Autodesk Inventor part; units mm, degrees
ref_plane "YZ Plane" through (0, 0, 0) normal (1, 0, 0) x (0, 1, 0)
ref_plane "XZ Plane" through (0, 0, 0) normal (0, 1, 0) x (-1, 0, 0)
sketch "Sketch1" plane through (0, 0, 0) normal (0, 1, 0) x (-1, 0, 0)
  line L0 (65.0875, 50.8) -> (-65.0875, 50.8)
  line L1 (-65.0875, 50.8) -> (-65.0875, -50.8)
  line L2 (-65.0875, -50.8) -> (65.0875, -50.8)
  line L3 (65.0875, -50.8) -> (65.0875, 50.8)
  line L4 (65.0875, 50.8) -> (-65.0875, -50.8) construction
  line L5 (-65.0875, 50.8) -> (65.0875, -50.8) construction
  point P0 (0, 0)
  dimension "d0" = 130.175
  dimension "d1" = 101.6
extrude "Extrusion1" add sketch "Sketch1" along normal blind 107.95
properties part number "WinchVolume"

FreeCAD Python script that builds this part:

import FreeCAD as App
import Part
import Sketcher

V = App.Vector
Q = App.Units.Quantity

doc = App.newDocument("Part")
body = doc.addObject("PartDesign::Body", "Body")

sketch1 = body.newObject("Sketcher::SketchObject", "Sketch")
sketch1.AttachmentSupport = (doc.getObject("XZ_Plane"), [""])
sketch1.MapMode = "FlatFace"
sketch1.addGeometry([
    Part.LineSegment(V(-65, -51, 0), V(-65, 51, 0)),
    Part.LineSegment(V(-65, 51, 0), V(65, 51, 0)),
    Part.LineSegment(V(65, 51, 0), V(65, -51, 0)),
    Part.LineSegment(V(65, -51, 0), V(-65, -51, 0)),
], False)
sketch1.addConstraint([
    Sketcher.Constraint("Coincident", 0, 2, 1, 1),
    Sketcher.Constraint("Coincident", 1, 2, 2, 1),
    Sketcher.Constraint("Coincident", 2, 2, 3, 1),
    Sketcher.Constraint("Coincident", 3, 2, 0, 1),
    Sketcher.Constraint("Vertical", 0),
    Sketcher.Constraint("Horizontal", 1),
    Sketcher.Constraint("Vertical", 2),
    Sketcher.Constraint("Horizontal", 3),
    Sketcher.Constraint("Symmetric", 0, 2, 2, 2, -1, 1),
    Sketcher.Constraint("DistanceY", 0, 1, 0, 2, Q("4 in")),
    Sketcher.Constraint("DistanceX", 1, 1, 1, 2, Q("5.125 in")),
])
pad1 = body.newObject("PartDesign::Pad", "Pad")
pad1.Profile = sketch1
pad1.Length = Q("4.25 in")
pad1.Reversed = True

doc.recompute()
